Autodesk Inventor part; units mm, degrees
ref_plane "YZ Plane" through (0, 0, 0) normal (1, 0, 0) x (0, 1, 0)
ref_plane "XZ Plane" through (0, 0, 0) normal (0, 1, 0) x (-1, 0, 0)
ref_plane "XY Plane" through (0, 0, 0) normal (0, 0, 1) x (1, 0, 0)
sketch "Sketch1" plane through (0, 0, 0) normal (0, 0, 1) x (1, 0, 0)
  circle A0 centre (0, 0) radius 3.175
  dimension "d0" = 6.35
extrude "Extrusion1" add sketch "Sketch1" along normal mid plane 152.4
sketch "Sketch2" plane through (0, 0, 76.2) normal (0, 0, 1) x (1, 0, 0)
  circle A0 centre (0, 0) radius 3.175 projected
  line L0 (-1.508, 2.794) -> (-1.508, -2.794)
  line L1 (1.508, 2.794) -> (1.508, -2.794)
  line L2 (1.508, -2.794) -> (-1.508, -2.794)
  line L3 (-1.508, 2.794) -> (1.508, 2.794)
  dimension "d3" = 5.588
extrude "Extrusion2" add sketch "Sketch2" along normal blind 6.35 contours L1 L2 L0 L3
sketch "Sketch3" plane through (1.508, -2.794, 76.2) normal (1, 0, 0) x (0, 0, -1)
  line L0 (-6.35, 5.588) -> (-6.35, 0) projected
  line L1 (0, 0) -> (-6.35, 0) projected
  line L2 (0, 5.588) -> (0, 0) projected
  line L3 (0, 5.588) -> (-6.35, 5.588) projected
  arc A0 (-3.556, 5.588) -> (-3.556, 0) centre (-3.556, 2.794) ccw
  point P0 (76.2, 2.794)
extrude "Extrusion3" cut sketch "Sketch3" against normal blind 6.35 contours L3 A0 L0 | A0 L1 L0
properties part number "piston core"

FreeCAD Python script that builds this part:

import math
import FreeCAD as App
import Part
import Sketcher

V = App.Vector
Q = App.Units.Quantity


def add_polygon(sketch, points):
    """Adds a closed chain of lines whose ends are joined by coincident constraints."""
    first, n = sketch.GeometryCount, len(points)
    for a, b in zip(points, points[1:] + points[:1]):
        sketch.addGeometry(Part.LineSegment(App.Vector(*a, 0), App.Vector(*b, 0)), False)
    for i in range(n):
        sketch.addConstraint(Sketcher.Constraint("Coincident", first + i, 2, first + (i + 1) % n, 1))

doc = App.newDocument("Part")
params = doc.addObject("Spreadsheet::Sheet", "Params")
for row, (alias, value) in enumerate([
    ("sketch1_diameter", "0.25 in"),
    ("pad1_length", "6 in"),
    ("sketch2_height", "0.22 in"),
    ("pad2_length", "0.25 in"),
    ("sketch3_radius", "0.11 in"),
    ("pocket1_length", "0.25 in"),
], start=1):
    params.set(f"A{row}", alias)
    params.set(f"B{row}", "=" + value)
    params.setAlias(f"B{row}", alias)

body = doc.addObject("PartDesign::Body", "Body")

# Sketch on XY plane
sketch1 = doc.addObject("Sketcher::SketchObject", "Sketch")
body.addObject(sketch1)
sketch1.AttachmentSupport = (doc.XY_Plane, [""])
sketch1.MapMode = "FlatFace"
sketch1.addGeometry(Part.Circle(V(0, 0, 0), V(0, 0, 1), 3.2), False)
sketch1.addConstraint(Sketcher.Constraint("Coincident", 0, 3, -1, 1))
sketch1.addConstraint(Sketcher.Constraint("Diameter", 0, Q("0.25 in")))
sketch1.setExpression("Constraints[1]", "Params.sketch1_diameter")
pad1 = doc.addObject("PartDesign::Pad", "Pad")
body.addObject(pad1)
pad1.Profile = sketch1
pad1.setExpression("Length", "Params.pad1_length")
pad1.Midplane = True

# Sketch on XY plane
sketch2 = doc.addObject("Sketcher::SketchObject", "Sketch001")
body.addObject(sketch2)
sketch2.AttachmentSupport = (doc.XY_Plane, [""])
sketch2.MapMode = "FlatFace"
sketch2.AttachmentOffset = App.Placement(V(0, 0, 3 * 25.4), App.Rotation())
add_polygon(sketch2, [(1.5, -2.8), (1.5, 2.8), (-1.5, 2.8), (-1.5, -2.8)])  # lines 0-3
sketch2.addConstraint(Sketcher.Constraint("Vertical", 0))
sketch2.addConstraint(Sketcher.Constraint("Horizontal", 1))
sketch2.addConstraint(Sketcher.Constraint("Vertical", 2))
sketch2.addConstraint(Sketcher.Constraint("Horizontal", 3))
sketch2.addConstraint(Sketcher.Constraint("Symmetric", 0, 2, 2, 2, -1, 1))
sketch2.addConstraint(Sketcher.Constraint("DistanceY", 0, 1, 0, 2, Q("0.22 in")))
sketch2.addConstraint(Sketcher.Constraint("DistanceX", 1, 2, 1, 1, 3.016))
sketch2.setExpression("Constraints[9]", "Params.sketch2_height")
pad2 = doc.addObject("PartDesign::Pad", "Pad001")
body.addObject(pad2)
pad2.Profile = sketch2
pad2.setExpression("Length", "Params.pad2_length")

# Sketch on YZ plane
sketch3 = doc.addObject("Sketcher::SketchObject", "Sketch002")
body.addObject(sketch3)
sketch3.AttachmentSupport = (doc.YZ_Plane, [""])
sketch3.MapMode = "FlatFace"
sketch3.AttachmentOffset = App.Placement(V(0, 0, 1.508), App.Rotation())
sketch3.addGeometry(Part.LineSegment(V(2.8, 79.8, 0), V(2.8, 82.5, 0)), False)
sketch3.addGeometry(Part.LineSegment(V(2.8, 82.5, 0), V(0, 82.5, 0)), False)
sketch3.addGeometry(Part.ArcOfCircle(Part.Circle(V(0, 79.8, 0), V(0, 0, 1), 2.8), math.radians(0), math.radians(90)), False)
sketch3.addGeometry(Part.ArcOfCircle(Part.Circle(V(0, 79.8, 0), V(0, 0, 1), 2.8), math.radians(90), math.radians(180)), False)
sketch3.addGeometry(Part.LineSegment(V(0, 82.5, 0), V(-2.8, 82.5, 0)), False)
sketch3.addGeometry(Part.LineSegment(V(-2.8, 82.5, 0), V(-2.8, 79.8, 0)), False)
sketch3.addConstraint(Sketcher.Constraint("Coincident", 0, 2, 1, 1))
sketch3.addConstraint(Sketcher.Constraint("Tangent", 1, 2, 2, 2))
sketch3.addConstraint(Sketcher.Constraint("Tangent", 2, 1, 0, 1))
sketch3.addConstraint(Sketcher.Constraint("Tangent", 3, 1, 4, 1))
sketch3.addConstraint(Sketcher.Constraint("Coincident", 4, 2, 5, 1))
sketch3.addConstraint(Sketcher.Constraint("Tangent", 5, 2, 3, 2))
sketch3.addConstraint(Sketcher.Constraint("Vertical", 0))
sketch3.addConstraint(Sketcher.Constraint("Horizontal", 1))
sketch3.addConstraint(Sketcher.Constraint("Horizontal", 4))
sketch3.addConstraint(Sketcher.Constraint("Vertical", 5))
sketch3.addConstraint(Sketcher.Constraint("Coincident", 3, 3, 2, 3))
sketch3.addConstraint(Sketcher.Constraint("Equal", 2, 3))
sketch3.addConstraint(Sketcher.Constraint("PointOnObject", 2, 3, -2))
sketch3.addConstraint(Sketcher.Constraint("Radius", 2, Q("0.11 in")))
sketch3.addConstraint(Sketcher.Constraint("DistanceY", -1, 1, 2, 3, Q("3.14 in")))
sketch3.setExpression("Constraints[13]", "Params.sketch3_radius")
pocket1 = doc.addObject("PartDesign::Pocket", "Pocket")
body.addObject(pocket1)
pocket1.Profile = sketch3
pocket1.setExpression("Length", "Params.pocket1_length")

doc.recompute()
